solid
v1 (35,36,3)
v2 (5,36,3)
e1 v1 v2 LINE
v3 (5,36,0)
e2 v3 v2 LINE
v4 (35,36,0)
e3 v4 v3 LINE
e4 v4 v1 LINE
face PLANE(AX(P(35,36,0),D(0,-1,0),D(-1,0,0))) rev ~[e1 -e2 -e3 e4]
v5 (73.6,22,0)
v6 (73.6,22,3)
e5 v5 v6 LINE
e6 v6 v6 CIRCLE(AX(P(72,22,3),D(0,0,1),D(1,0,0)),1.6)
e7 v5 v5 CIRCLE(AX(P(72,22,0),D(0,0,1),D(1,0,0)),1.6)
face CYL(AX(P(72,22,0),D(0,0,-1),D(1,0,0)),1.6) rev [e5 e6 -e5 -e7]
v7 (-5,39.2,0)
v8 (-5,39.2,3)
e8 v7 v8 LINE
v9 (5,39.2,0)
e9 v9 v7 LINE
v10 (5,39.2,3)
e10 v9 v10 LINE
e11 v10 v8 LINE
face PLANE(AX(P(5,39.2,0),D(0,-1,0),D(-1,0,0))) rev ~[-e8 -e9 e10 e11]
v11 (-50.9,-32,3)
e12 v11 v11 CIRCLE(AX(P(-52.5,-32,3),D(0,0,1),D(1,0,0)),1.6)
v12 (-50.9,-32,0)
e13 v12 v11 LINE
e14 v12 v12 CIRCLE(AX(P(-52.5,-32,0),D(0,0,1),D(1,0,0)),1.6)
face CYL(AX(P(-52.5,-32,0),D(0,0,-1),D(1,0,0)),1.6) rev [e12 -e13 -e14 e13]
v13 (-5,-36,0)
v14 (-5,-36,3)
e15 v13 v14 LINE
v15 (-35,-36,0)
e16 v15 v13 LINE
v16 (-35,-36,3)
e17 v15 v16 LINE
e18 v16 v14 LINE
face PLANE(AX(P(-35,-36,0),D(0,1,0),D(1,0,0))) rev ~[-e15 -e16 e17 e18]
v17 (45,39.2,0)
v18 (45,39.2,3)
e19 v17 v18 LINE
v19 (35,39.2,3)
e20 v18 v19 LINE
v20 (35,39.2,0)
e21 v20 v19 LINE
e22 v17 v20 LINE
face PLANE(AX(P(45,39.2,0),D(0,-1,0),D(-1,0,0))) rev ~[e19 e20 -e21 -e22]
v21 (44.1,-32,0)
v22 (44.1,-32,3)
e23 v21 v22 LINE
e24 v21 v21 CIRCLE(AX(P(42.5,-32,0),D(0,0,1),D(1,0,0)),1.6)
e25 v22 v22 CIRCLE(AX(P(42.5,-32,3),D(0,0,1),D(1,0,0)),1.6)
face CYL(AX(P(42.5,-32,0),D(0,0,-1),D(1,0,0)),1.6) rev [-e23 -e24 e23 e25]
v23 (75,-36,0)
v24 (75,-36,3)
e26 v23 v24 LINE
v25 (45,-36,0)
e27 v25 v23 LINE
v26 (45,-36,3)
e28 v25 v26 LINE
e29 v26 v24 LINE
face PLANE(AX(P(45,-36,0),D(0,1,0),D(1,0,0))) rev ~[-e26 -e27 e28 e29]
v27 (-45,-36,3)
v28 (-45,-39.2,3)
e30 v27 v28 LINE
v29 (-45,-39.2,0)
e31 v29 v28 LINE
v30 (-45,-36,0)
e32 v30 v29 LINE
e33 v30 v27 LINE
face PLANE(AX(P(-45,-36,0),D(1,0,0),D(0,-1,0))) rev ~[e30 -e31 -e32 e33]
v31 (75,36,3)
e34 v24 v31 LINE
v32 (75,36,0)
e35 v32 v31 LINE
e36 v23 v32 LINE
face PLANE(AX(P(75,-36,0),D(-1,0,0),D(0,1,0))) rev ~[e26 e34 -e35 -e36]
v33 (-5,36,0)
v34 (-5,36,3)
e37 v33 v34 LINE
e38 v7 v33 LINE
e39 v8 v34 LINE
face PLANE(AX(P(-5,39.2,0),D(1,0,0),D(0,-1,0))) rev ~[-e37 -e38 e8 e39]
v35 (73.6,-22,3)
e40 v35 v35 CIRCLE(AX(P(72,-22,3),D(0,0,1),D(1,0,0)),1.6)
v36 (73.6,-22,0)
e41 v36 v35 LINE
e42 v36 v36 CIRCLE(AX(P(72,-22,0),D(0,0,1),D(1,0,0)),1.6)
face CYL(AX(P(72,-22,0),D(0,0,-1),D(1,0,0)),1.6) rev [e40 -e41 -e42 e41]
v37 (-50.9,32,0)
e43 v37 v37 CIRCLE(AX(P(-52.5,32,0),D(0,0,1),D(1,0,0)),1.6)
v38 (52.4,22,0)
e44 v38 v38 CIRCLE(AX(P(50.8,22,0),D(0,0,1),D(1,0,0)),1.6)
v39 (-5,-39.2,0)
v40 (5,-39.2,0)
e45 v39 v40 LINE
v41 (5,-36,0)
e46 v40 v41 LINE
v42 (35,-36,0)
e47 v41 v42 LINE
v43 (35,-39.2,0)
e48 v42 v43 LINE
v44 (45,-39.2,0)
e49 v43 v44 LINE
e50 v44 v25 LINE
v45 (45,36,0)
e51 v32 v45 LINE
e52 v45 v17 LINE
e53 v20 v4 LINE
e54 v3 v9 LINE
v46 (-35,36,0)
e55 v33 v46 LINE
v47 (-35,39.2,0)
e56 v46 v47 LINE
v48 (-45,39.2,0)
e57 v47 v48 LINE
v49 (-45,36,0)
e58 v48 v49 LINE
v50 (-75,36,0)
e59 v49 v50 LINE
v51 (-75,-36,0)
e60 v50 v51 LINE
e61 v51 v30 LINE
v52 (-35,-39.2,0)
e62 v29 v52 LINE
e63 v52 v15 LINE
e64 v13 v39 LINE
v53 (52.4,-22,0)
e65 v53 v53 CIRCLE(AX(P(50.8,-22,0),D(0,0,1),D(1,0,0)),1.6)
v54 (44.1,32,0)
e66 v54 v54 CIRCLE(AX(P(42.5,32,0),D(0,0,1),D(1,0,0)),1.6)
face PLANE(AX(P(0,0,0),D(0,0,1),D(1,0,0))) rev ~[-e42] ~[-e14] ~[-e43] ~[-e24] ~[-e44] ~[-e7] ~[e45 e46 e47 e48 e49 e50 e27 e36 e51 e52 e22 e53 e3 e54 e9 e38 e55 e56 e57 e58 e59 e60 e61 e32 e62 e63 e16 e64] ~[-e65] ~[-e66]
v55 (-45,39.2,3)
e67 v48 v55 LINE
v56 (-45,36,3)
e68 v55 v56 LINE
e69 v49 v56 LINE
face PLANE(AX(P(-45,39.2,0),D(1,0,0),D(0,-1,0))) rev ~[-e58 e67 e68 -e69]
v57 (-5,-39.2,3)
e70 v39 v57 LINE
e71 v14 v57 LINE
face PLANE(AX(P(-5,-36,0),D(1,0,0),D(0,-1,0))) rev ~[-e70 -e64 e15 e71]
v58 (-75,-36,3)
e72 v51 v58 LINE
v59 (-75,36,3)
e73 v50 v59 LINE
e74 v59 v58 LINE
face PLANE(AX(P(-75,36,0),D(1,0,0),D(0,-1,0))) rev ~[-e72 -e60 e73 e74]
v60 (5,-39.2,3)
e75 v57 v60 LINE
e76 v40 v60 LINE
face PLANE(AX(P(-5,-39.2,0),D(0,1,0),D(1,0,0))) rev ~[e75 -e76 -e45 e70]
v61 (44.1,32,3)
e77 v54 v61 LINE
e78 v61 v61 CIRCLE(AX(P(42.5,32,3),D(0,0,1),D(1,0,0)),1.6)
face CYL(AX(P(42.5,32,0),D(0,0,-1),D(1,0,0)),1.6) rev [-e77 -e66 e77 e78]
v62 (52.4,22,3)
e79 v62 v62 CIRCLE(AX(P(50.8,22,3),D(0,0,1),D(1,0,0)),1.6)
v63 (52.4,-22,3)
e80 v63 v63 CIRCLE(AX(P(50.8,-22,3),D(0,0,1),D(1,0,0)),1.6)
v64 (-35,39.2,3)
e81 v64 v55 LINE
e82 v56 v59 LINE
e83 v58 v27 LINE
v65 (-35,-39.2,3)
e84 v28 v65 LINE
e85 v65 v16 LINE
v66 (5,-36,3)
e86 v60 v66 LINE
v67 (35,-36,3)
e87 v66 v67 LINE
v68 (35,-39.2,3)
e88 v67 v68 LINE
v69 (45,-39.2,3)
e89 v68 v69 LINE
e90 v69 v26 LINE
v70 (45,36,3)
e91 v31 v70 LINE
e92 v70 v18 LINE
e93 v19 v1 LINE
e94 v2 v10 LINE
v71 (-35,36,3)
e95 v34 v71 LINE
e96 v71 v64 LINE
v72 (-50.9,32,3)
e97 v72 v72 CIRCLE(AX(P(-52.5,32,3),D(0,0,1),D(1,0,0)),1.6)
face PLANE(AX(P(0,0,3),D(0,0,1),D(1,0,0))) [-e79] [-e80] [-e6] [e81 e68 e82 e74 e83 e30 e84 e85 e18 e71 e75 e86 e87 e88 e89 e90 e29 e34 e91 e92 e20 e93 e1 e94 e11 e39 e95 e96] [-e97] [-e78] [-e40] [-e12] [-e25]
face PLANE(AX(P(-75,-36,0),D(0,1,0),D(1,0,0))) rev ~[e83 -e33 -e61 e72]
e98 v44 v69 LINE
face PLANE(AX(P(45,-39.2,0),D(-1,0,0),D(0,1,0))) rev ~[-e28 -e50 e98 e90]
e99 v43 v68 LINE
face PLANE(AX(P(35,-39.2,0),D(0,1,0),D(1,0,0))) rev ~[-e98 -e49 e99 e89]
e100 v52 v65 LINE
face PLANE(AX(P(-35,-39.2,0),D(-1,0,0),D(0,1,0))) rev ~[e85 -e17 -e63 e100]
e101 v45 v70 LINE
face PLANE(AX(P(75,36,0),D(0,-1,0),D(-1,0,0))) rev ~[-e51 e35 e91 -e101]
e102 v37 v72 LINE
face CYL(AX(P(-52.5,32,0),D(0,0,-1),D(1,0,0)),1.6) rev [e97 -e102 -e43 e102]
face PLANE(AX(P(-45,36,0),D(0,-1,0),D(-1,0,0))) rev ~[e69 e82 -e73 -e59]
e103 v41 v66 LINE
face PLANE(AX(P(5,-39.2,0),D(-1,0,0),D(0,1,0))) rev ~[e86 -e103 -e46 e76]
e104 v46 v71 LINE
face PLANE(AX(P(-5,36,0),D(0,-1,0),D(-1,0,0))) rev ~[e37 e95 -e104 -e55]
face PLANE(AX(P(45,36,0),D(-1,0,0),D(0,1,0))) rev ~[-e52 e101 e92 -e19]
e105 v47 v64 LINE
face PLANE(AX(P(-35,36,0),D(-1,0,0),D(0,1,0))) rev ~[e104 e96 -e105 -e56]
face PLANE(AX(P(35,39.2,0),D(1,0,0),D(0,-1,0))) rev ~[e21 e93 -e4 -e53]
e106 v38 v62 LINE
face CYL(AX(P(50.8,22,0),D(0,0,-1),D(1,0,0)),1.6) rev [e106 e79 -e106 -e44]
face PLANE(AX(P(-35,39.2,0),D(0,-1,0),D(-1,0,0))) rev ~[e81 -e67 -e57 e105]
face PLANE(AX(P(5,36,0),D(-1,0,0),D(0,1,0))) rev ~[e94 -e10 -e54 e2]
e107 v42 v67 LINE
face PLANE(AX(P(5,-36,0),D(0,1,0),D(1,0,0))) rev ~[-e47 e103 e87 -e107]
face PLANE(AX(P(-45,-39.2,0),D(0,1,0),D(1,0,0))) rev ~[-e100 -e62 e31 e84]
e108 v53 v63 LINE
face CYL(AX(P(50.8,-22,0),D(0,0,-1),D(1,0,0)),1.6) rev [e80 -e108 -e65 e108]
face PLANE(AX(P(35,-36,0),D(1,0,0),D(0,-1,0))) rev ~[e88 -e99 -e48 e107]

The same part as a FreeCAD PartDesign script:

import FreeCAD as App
import Part
import Sketcher
Q = App.Units.Quantity


def add_polygon(sketch, points):
    """Adds a closed chain of lines whose ends are joined by coincident constraints."""
    first, n = sketch.GeometryCount, len(points)
    for a, b in zip(points, points[1:] + points[:1]):
        sketch.addGeometry(Part.LineSegment(App.Vector(*a, 0), App.Vector(*b, 0)), False)
    for i in range(n):
        sketch.addConstraint(Sketcher.Constraint("Coincident", first + i, 2, first + (i + 1) % n, 1))

doc = App.newDocument("Part")
body = doc.addObject("PartDesign::Body", "Body")

# Sketch on XY plane
sketch1 = doc.addObject("Sketcher::SketchObject", "Sketch")
body.addObject(sketch1)
sketch1.AttachmentSupport = (doc.XY_Plane, [""])
sketch1.MapMode = "FlatFace"
add_polygon(sketch1, [(-45, 36), (-75, 36), (-75, -36), (-45, -36), (-45, -39.2), (-35, -39.2), (-35, -36), (-5, -36), (-5, -39.2), (5, -39.2), (5, -36), (35, -36), (35, -39.2), (45, -39.2), (45, -36), (75, -36), (75, 36), (45, 36), (45, 39.2), (35, 39.2), (35, 36), (5, 36), (5, 39.2), (-5, 39.2), (-5, 36), (-35, 36), (-35, 39.2), (-45, 39.2)])  # lines 0-27
sketch1.addGeometry(Part.Circle(App.Vector(-52.5, -32, 0), App.Vector(0, 0, 1), 1.6), False)  # 28
sketch1.addGeometry(Part.Circle(App.Vector(42.5, -32, 0), App.Vector(0, 0, 1), 1.6), False)  # 29
sketch1.addGeometry(Part.Circle(App.Vector(50.8, -22, 0), App.Vector(0, 0, 1), 1.6), False)  # 30
sketch1.addGeometry(Part.Circle(App.Vector(72, -22, 0), App.Vector(0, 0, 1), 1.6), False)  # 31
sketch1.addGeometry(Part.Circle(App.Vector(-52.5, 32, 0), App.Vector(0, 0, 1), 1.6), False)  # 32
sketch1.addGeometry(Part.Circle(App.Vector(50.8, 22, 0), App.Vector(0, 0, 1), 1.6), False)  # 33
sketch1.addGeometry(Part.Circle(App.Vector(72, 22, 0), App.Vector(0, 0, 1), 1.6), False)  # 34
sketch1.addGeometry(Part.Circle(App.Vector(42.5, 32, 0), App.Vector(0, 0, 1), 1.6), False)  # 35
sketch1.addConstraint([
    Sketcher.Constraint("Horizontal", 0),
    Sketcher.Constraint("Vertical", 1),
    Sketcher.Constraint("Horizontal", 2),
    Sketcher.Constraint("Vertical", 3),
    Sketcher.Constraint("Horizontal", 4),
    Sketcher.Constraint("Vertical", 5),
    Sketcher.Constraint("Horizontal", 6),
    Sketcher.Constraint("Vertical", 7),
    Sketcher.Constraint("Horizontal", 8),
    Sketcher.Constraint("Vertical", 9),
    Sketcher.Constraint("Horizontal", 10),
    Sketcher.Constraint("Vertical", 11),
    Sketcher.Constraint("Horizontal", 12),
    Sketcher.Constraint("Vertical", 13),
    Sketcher.Constraint("Horizontal", 14),
    Sketcher.Constraint("Vertical", 15),
    Sketcher.Constraint("Horizontal", 16),
    Sketcher.Constraint("Vertical", 17),
    Sketcher.Constraint("Horizontal", 18),
    Sketcher.Constraint("Vertical", 19),
    Sketcher.Constraint("Horizontal", 20),
    Sketcher.Constraint("Vertical", 21),
    Sketcher.Constraint("Horizontal", 22),
    Sketcher.Constraint("Vertical", 23),
    Sketcher.Constraint("Horizontal", 24),
    Sketcher.Constraint("Vertical", 25),
    Sketcher.Constraint("Horizontal", 26),
    Sketcher.Constraint("Vertical", 27),
    Sketcher.Constraint("Equal", 28, 29),
    Sketcher.Constraint("Equal", 29, 30),
    Sketcher.Constraint("Equal", 30, 31),
    Sketcher.Constraint("Equal", 31, 32),
    Sketcher.Constraint("Equal", 32, 33),
    Sketcher.Constraint("Equal", 33, 34),
    Sketcher.Constraint("Equal", 34, 35),
    Sketcher.Constraint("Symmetric", 0, 2, 14, 2, -1, 1),
    Sketcher.Constraint("Symmetric", 2, 2, 16, 2, -1, 1),
    Sketcher.Constraint("Symmetric", 4, 2, 18, 2, -1, 1),
    Sketcher.Constraint("Symmetric", 6, 2, 20, 2, -1, 1),
    Sketcher.Constraint("Symmetric", 8, 2, 22, 2, -1, 1),
    Sketcher.Constraint("Symmetric", 10, 2, 24, 2, -1, 1),
    Sketcher.Constraint("Symmetric", 12, 2, 26, 2, -1, 1),
    Sketcher.Constraint("Symmetric", 6, 2, 9, 2, -2),
    Sketcher.Constraint("Symmetric", 4, 2, 11, 2, -2),
    Sketcher.Constraint("Symmetric", 2, 2, 13, 2, -2),
    Sketcher.Constraint("Symmetric", 28, 3, 32, 3, -1),
    Sketcher.Constraint("Symmetric", 30, 3, 33, 3, -1),
    Sketcher.Constraint("Symmetric", 31, 3, 34, 3, -1),
    Sketcher.Constraint("Symmetric", 29, 3, 35, 3, -1),
    Sketcher.Constraint("Horizontal", 28, 3, 29, 3),
    Sketcher.Constraint("Horizontal", 30, 3, 31, 3),
    Sketcher.Constraint("Horizontal", 2, 2, 5, 2),
    Sketcher.Constraint("Horizontal", 4, 2, 7, 2),
    Sketcher.Constraint("Equal", 2, 6),
    Sketcher.Constraint("Equal", 4, 8),
    Sketcher.Constraint("Diameter", 28, Q("3.2 mm")),
    Sketcher.Constraint("DistanceX", 0, 2, 0, 1, Q("30 mm")),
    Sketcher.Constraint("DistanceX", 4, 1, 4, 2, Q("10 mm")),
    Sketcher.Constraint("DistanceY", 1, 2, 1, 1, Q("72 mm")),
    Sketcher.Constraint("DistanceY", 3, 2, 3, 1, Q("3.2 mm")),
    Sketcher.Constraint("DistanceY", 28, 3, -1, 1, Q("32 mm")),
    Sketcher.Constraint("DistanceY", 30, 3, -1, 1, Q("22 mm")),
    Sketcher.Constraint("DistanceX", -1, 1, 31, 3, Q("72 mm")),
    Sketcher.Constraint("DistanceX", 28, 3, 29, 3, Q("95 mm")),
    Sketcher.Constraint("DistanceX", 28, 3, -1, 1, Q("52.5 mm")),
    Sketcher.Constraint("DistanceX", -1, 1, 30, 3, Q("50.8 mm")),
])
pad1 = doc.addObject("PartDesign::Pad", "Pad")
body.addObject(pad1)
pad1.Profile = sketch1
pad1.Length = 3

doc.recompute()
